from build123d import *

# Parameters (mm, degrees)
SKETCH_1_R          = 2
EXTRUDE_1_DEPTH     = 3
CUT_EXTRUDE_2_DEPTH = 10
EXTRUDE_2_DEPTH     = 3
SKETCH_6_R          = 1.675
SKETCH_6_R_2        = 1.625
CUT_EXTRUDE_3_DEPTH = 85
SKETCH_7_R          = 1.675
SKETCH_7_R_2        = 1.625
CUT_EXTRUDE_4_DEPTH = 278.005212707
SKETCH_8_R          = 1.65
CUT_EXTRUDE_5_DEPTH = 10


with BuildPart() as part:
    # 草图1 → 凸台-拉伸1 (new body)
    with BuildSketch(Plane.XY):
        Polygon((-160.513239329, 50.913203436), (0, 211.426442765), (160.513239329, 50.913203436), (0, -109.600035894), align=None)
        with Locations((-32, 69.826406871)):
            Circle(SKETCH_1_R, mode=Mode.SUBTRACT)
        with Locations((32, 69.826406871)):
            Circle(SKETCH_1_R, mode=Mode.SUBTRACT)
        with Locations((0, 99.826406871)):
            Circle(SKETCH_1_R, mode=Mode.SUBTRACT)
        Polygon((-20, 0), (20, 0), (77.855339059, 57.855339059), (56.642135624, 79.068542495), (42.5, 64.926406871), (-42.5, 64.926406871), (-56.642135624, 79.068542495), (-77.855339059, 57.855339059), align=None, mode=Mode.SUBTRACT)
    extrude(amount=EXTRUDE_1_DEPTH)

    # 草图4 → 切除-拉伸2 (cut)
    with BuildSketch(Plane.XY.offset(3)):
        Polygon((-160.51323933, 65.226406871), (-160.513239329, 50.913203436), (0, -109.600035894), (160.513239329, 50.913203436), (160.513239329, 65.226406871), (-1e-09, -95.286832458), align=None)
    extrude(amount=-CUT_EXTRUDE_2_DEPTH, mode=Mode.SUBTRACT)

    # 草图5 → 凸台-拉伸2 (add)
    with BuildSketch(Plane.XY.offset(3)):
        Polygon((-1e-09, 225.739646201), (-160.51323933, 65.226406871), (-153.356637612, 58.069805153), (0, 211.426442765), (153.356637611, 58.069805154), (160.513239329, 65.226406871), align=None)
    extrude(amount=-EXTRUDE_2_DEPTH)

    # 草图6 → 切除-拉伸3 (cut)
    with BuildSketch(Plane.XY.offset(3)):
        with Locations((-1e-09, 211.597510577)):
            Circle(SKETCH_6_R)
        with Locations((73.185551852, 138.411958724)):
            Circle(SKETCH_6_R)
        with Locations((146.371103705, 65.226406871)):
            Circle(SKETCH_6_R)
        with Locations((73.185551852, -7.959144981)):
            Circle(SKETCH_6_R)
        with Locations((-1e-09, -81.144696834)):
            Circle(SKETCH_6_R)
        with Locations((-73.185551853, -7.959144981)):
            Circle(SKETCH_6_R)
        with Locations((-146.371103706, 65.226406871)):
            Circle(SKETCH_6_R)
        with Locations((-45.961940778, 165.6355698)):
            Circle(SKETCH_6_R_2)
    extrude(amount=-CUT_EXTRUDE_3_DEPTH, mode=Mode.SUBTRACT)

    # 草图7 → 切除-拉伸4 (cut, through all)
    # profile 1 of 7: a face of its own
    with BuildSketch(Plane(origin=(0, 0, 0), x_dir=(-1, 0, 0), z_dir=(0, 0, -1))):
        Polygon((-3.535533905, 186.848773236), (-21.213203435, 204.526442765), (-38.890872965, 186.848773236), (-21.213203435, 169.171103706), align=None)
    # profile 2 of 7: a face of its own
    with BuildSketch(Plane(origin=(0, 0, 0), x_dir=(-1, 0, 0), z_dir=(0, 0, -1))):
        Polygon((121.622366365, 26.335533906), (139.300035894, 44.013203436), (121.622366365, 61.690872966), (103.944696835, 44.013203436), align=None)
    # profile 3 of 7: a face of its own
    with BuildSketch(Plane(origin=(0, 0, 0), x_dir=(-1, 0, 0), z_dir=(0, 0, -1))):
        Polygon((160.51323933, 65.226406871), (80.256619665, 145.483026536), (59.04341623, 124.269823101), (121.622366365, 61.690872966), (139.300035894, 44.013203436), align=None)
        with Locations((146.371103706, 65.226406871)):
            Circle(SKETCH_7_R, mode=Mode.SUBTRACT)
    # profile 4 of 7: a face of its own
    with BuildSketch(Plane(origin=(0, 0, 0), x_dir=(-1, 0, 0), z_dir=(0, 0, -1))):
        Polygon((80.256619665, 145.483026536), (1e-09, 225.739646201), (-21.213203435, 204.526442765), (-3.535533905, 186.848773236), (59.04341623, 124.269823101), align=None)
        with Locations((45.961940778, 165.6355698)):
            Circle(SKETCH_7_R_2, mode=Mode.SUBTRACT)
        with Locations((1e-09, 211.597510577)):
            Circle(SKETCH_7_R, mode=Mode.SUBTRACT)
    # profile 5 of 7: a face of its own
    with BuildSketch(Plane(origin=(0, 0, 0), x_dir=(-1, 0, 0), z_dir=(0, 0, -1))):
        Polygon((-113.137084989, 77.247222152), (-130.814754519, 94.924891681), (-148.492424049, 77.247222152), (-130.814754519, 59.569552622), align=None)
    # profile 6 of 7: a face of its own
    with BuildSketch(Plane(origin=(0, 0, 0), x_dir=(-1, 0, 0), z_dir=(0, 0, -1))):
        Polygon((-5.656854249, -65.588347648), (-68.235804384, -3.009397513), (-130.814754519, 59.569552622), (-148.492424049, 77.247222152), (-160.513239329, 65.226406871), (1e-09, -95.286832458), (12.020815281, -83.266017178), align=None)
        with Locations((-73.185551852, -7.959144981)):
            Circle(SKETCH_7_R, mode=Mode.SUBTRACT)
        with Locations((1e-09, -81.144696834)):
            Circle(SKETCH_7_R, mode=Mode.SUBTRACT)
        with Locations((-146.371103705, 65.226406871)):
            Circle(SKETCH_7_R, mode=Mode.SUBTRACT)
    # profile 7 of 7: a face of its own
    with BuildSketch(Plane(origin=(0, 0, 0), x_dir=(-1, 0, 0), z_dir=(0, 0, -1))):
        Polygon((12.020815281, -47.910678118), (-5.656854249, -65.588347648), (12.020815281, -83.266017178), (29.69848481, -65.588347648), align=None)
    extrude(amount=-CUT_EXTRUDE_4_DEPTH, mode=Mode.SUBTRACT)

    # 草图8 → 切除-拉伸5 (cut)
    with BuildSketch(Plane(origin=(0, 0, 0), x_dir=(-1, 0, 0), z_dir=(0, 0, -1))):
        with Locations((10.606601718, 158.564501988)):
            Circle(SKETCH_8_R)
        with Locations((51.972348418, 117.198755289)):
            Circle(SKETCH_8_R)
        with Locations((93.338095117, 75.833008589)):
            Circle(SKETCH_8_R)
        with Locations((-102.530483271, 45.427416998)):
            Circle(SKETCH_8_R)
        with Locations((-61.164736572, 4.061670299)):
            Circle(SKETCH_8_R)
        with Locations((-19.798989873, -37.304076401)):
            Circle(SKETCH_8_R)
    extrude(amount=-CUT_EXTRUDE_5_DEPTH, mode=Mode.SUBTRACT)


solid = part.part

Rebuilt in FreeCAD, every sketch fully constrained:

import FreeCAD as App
import Part
import Sketcher

doc = App.newDocument("Part")
body = doc.addObject("PartDesign::Body", "Body")

sketch1 = doc.addObject("Sketcher::SketchObject", "Sketch")
body.addObject(sketch1)
sketch1.AttachmentSupport = (doc.XY_Plane, [""])
sketch1.MapMode = "FlatFace"
sketch1.addGeometry([
    Part.LineSegment(App.Vector(0, 211.426443, 0), App.Vector(-160.513239, 50.913203, 0)),
    Part.LineSegment(App.Vector(-160.513239, 50.913203, 0), App.Vector(0, -109.600036, 0)),
    Part.LineSegment(App.Vector(0, -109.600036, 0), App.Vector(160.513239, 50.913203, 0)),
    Part.LineSegment(App.Vector(160.513239, 50.913203, 0), App.Vector(0, 211.426443, 0)),
    Part.LineSegment(App.Vector(-20, 0, 0), App.Vector(-77.855339, 57.855339, 0)),
    Part.LineSegment(App.Vector(-77.855339, 57.855339, 0), App.Vector(-56.642136, 79.068542, 0)),
    Part.LineSegment(App.Vector(-56.642136, 79.068542, 0), App.Vector(-42.5, 64.926407, 0)),
    Part.LineSegment(App.Vector(-42.5, 64.926407, 0), App.Vector(42.5, 64.926407, 0)),
    Part.LineSegment(App.Vector(42.5, 64.926407, 0), App.Vector(56.642136, 79.068542, 0)),
    Part.LineSegment(App.Vector(56.642136, 79.068542, 0), App.Vector(77.855339, 57.855339, 0)),
    Part.LineSegment(App.Vector(77.855339, 57.855339, 0), App.Vector(20, 0, 0)),
    Part.LineSegment(App.Vector(20, 0, 0), App.Vector(-20, 0, 0)),
    Part.Circle(App.Vector(32, 69.826407, 0), App.Vector(0, 0, 1), 2),
    Part.Circle(App.Vector(-32, 69.826407, 0), App.Vector(0, 0, 1), 2),
    Part.Circle(App.Vector(0, 99.826407, 0), App.Vector(0, 0, 1), 2),
], False)
sketch1.addConstraint([
    Sketcher.Constraint("Coincident", 0, 2, 1, 1),
    Sketcher.Constraint("Coincident", 1, 2, 2, 1),
    Sketcher.Constraint("Coincident", 2, 2, 3, 1),
    Sketcher.Constraint("Coincident", 3, 2, 0, 1),
    Sketcher.Constraint("Coincident", 4, 2, 5, 1),
    Sketcher.Constraint("Coincident", 5, 2, 6, 1),
    Sketcher.Constraint("Coincident", 6, 2, 7, 1),
    Sketcher.Constraint("Coincident", 7, 2, 8, 1),
    Sketcher.Constraint("Coincident", 8, 2, 9, 1),
    Sketcher.Constraint("Coincident", 9, 2, 10, 1),
    Sketcher.Constraint("Coincident", 10, 2, 11, 1),
    Sketcher.Constraint("Coincident", 11, 2, 4, 1),
    Sketcher.Constraint("Horizontal", 7),
    Sketcher.Constraint("Horizontal", 11),
    Sketcher.Constraint("Equal", 12, 13),
    Sketcher.Constraint("Equal", 13, 14),
    Sketcher.Constraint("Symmetric", 10, 2, 11, 2, -1, 1),
    Sketcher.Constraint("Symmetric", 12, 3, 13, 3, -2),
    Sketcher.Constraint("Symmetric", 0, 2, 2, 2, -2),
    Sketcher.Constraint("Symmetric", 5, 2, 8, 2, -2),
    Sketcher.Constraint("Symmetric", 4, 2, 9, 2, -2),
    Sketcher.Constraint("PointOnObject", 14, 3, -2),
    Sketcher.Constraint("PointOnObject", 1, 2, -2),
    Sketcher.Constraint("PointOnObject", 3, 2, -2),
    Sketcher.Constraint("Perpendicular", 0, 1),
    Sketcher.Constraint("Perpendicular", 1, 2),
    Sketcher.Constraint("Parallel", 3, 4),
    Sketcher.Constraint("Perpendicular", 4, 5),
    Sketcher.Constraint("Perpendicular", 5, 6),
    Sketcher.Constraint("Perpendicular", 6, 8),
    Sketcher.Constraint("Diameter", 12, 4.0),
    Sketcher.Constraint("DistanceX", 7, 1, 7, 2, 85.0),
    Sketcher.Constraint("DistanceX", 11, 2, 11, 1, 40.0),
    Sketcher.Constraint("Distance", 0, 227.0),
    Sketcher.Constraint("Distance", 5, 30.0),
    Sketcher.Constraint("Distance", 6, 20.0),
    Sketcher.Constraint("DistanceX", -1, 1, 12, 3, 32.0),
    Sketcher.Constraint("DistanceY", 12, 3, 14, 3, 30.0),
    Sketcher.Constraint("DistanceY", 6, 2, 13, 3, 4.9),
    Sketcher.Constraint("DistanceY", 0, 2, 5, 2, 28.155339),
])
pad1 = doc.addObject("PartDesign::Pad", "Pad")
body.addObject(pad1)
pad1.Profile = sketch1
pad1.Length = 3

sketch2 = doc.addObject("Sketcher::SketchObject", "Sketch001")
body.addObject(sketch2)
sketch2.AttachmentSupport = (doc.XY_Plane, [""])
sketch2.MapMode = "FlatFace"
sketch2.AttachmentOffset = App.Placement(App.Vector(0, 0, 3), App.Rotation())
sketch2.addGeometry([
    Part.LineSegment(App.Vector(-160.513239, 65.226407, 0), App.Vector(-160.513239, 50.913203, 0)),
    Part.LineSegment(App.Vector(-160.513239, 50.913203, 0), App.Vector(0, -109.600036, 0)),
    Part.LineSegment(App.Vector(0, -109.600036, 0), App.Vector(160.513239, 50.913203, 0)),
    Part.LineSegment(App.Vector(160.513239, 50.913203, 0), App.Vector(160.513239, 65.226407, 0)),
    Part.LineSegment(App.Vector(160.513239, 65.226407, 0), App.Vector(0, -95.286832, 0)),
    Part.LineSegment(App.Vector(0, -95.286832, 0), App.Vector(-160.513239, 65.226407, 0)),
], False)
sketch2.addConstraint([
    Sketcher.Constraint("Coincident", 0, 2, 1, 1),
    Sketcher.Constraint("Coincident", 1, 2, 2, 1),
    Sketcher.Constraint("Coincident", 2, 2, 3, 1),
    Sketcher.Constraint("Coincident", 3, 2, 4, 1),
    Sketcher.Constraint("Coincident", 4, 2, 5, 1),
    Sketcher.Constraint("Coincident", 5, 2, 0, 1),
    Sketcher.Constraint("Vertical", 0),
    Sketcher.Constraint("Vertical", 3),
    Sketcher.Constraint("Symmetric", 0, 2, 2, 2, -2),
    Sketcher.Constraint("PointOnObject", 1, 2, -2),
    Sketcher.Constraint("PointOnObject", 4, 2, -2),
    Sketcher.Constraint("Perpendicular", 1, 2),
    Sketcher.Constraint("Parallel", 2, 4),
    Sketcher.Constraint("Perpendicular", 4, 5),
    Sketcher.Constraint("Distance", 1, 227.0),
    Sketcher.Constraint("DistanceY", 0, 2, 0, 1, 14.313203),
    Sketcher.Constraint("DistanceY", -1, 1, 0, 2, 50.913203),
])
pocket1 = doc.addObject("PartDesign::Pocket", "Pocket")
body.addObject(pocket1)
pocket1.Profile = sketch2
pocket1.Length = 10

sketch3 = doc.addObject("Sketcher::SketchObject", "Sketch002")
body.addObject(sketch3)
sketch3.AttachmentSupport = (doc.XY_Plane, [""])
sketch3.MapMode = "FlatFace"
sketch3.AttachmentOffset = App.Placement(App.Vector(0, 0, 3), App.Rotation())
sketch3.addGeometry([
    Part.LineSegment(App.Vector(0, 225.739646, 0), App.Vector(-160.513239, 65.226407, 0)),
    Part.LineSegment(App.Vector(-160.513239, 65.226407, 0), App.Vector(-153.356638, 58.069805, 0)),
    Part.LineSegment(App.Vector(-153.356638, 58.069805, 0), App.Vector(0, 211.426443, 0)),
    Part.LineSegment(App.Vector(0, 211.426443, 0), App.Vector(153.356638, 58.069805, 0)),
    Part.LineSegment(App.Vector(153.356638, 58.069805, 0), App.Vector(160.513239, 65.226407, 0)),
    Part.LineSegment(App.Vector(160.513239, 65.226407, 0), App.Vector(0, 225.739646, 0)),
], False)
sketch3.addConstraint([
    Sketcher.Constraint("Coincident", 0, 2, 1, 1),
    Sketcher.Constraint("Coincident", 1, 2, 2, 1),
    Sketcher.Constraint("Coincident", 2, 2, 3, 1),
    Sketcher.Constraint("Coincident", 3, 2, 4, 1),
    Sketcher.Constraint("Coincident", 4, 2, 5, 1),
    Sketcher.Constraint("Coincident", 5, 2, 0, 1),
    Sketcher.Constraint("Symmetric", 1, 2, 3, 2, -2),
    Sketcher.Constraint("Symmetric", 0, 2, 4, 2, -2),
    Sketcher.Constraint("PointOnObject", 2, 2, -2),
    Sketcher.Constraint("PointOnObject", 5, 2, -2),
    Sketcher.Constraint("Perpendicular", 0, 1),
    Sketcher.Constraint("Perpendicular", 1, 2),
    Sketcher.Constraint("Perpendicular", 2, 3),
    Sketcher.Constraint("Distance", 0, 227.0),
    Sketcher.Constraint("DistanceX", 0, 2, 1, 2, 7.156602),
    Sketcher.Constraint("DistanceY", -1, 1, 0, 2, 65.226407),
])
pad2 = doc.addObject("PartDesign::Pad", "Pad001")
body.addObject(pad2)
pad2.Profile = sketch3
pad2.Length = 3
pad2.Reversed = True

sketch4 = doc.addObject("Sketcher::SketchObject", "Sketch003")
body.addObject(sketch4)
sketch4.AttachmentSupport = (doc.XY_Plane, [""])
sketch4.MapMode = "FlatFace"
sketch4.AttachmentOffset = App.Placement(App.Vector(0, 0, 3), App.Rotation())
sketch4.addGeometry([
    Part.Circle(App.Vector(0, 211.597511, 0), App.Vector(0, 0, 1), 1.675),
    Part.Circle(App.Vector(73.185552, 138.411959, 0), App.Vector(0, 0, 1), 1.675),
    Part.Circle(App.Vector(146.371104, 65.226407, 0), App.Vector(0, 0, 1), 1.675),
    Part.Circle(App.Vector(73.185552, -7.959145, 0), App.Vector(0, 0, 1), 1.675),
    Part.Circle(App.Vector(0, -81.144697, 0), App.Vector(0, 0, 1), 1.675),
    Part.Circle(App.Vector(-73.185552, -7.959145, 0), App.Vector(0, 0, 1), 1.675),
    Part.Circle(App.Vector(-146.371104, 65.226407, 0), App.Vector(0, 0, 1), 1.675),
    Part.Circle(App.Vector(-45.961941, 165.63557, 0), App.Vector(0, 0, 1), 1.625),
], False)
sketch4.addConstraint([
    Sketcher.Constraint("Equal", 0, 1),
    Sketcher.Constraint("Equal", 1, 2),
    Sketcher.Constraint("Equal", 2, 3),
    Sketcher.Constraint("Equal", 3, 4),
    Sketcher.Constraint("Equal", 4, 5),
    Sketcher.Constraint("Equal", 5, 6),
    Sketcher.Constraint("Symmetric", 3, 3, 5, 3, -2),
    Sketcher.Constraint("Symmetric", 2, 3, 6, 3, -2),
    Sketcher.Constraint("PointOnObject", 0, 3, -2),
    Sketcher.Constraint("PointOnObject", 4, 3, -2),
    Sketcher.Constraint("Vertical", 1, 3, 3, 3),
    Sketcher.Constraint("Diameter", 0, 3.35),
    Sketcher.Constraint("Diameter", 7, 3.25),
    Sketcher.Constraint("DistanceY", -1, 1, 0, 3, 211.597511),
    Sketcher.Constraint("DistanceX", -1, 1, 1, 3, 73.185552),
    Sketcher.Constraint("DistanceY", -1, 1, 1, 3, 138.411959),
    Sketcher.Constraint("DistanceX", 7, 3, -1, 1, 45.961941),
    Sketcher.Constraint("DistanceY", -1, 1, 7, 3, 165.63557),
    Sketcher.Constraint("DistanceX", 1, 3, 2, 3, 73.185552),
    Sketcher.Constraint("DistanceY", 2, 3, 1, 3, 73.185552),
    Sketcher.Constraint("DistanceY", 3, 3, 2, 3, 73.185552),
    Sketcher.Constraint("DistanceY", 4, 3, 3, 3, 73.185552),
])
pocket2 = doc.addObject("PartDesign::Pocket", "Pocket001")
body.addObject(pocket2)
pocket2.Profile = sketch4
pocket2.Length = 85

sketch5 = doc.addObject("Sketcher::SketchObject", "Sketch004")
body.addObject(sketch5)
sketch5.AttachmentSupport = (doc.XY_Plane, [""])
sketch5.MapMode = "FlatFace"
sketch5.addGeometry([
    Part.LineSegment(App.Vector(21.213203, 204.526443, 0), App.Vector(38.890873, 186.848773, 0)),
    Part.LineSegment(App.Vector(38.890873, 186.848773, 0), App.Vector(21.213203, 169.171104, 0)),
    Part.LineSegment(App.Vector(21.213203, 169.171104, 0), App.Vector(3.535534, 186.848773, 0)),
    Part.LineSegment(App.Vector(3.535534, 186.848773, 0), App.Vector(-121.622366, 61.690873, 0)),
    Part.LineSegment(App.Vector(-121.622366, 61.690873, 0), App.Vector(-103.944697, 44.013203, 0)),
    Part.LineSegment(App.Vector(-103.944697, 44.013203, 0), App.Vector(-121.622366, 26.335534, 0)),
    Part.LineSegment(App.Vector(-121.622366, 26.335534, 0), App.Vector(-139.300036, 44.013203, 0)),
    Part.LineSegment(App.Vector(-139.300036, 44.013203, 0), App.Vector(-160.513239, 65.226407, 0)),
    Part.LineSegment(App.Vector(-160.513239, 65.226407, 0), App.Vector(-80.25662, 145.483027, 0)),
    Part.LineSegment(App.Vector(-80.25662, 145.483027, 0), App.Vector(0, 225.739646, 0)),
    Part.LineSegment(App.Vector(0, 225.739646, 0), App.Vector(21.213203, 204.526443, 0)),
    Part.Circle(App.Vector(0, 211.597511, 0), App.Vector(0, 0, 1), 1.675),
    Part.Circle(App.Vector(-45.961941, 165.63557, 0), App.Vector(0, 0, 1), 1.625),
    Part.Circle(App.Vector(-146.371104, 65.226407, 0), App.Vector(0, 0, 1), 1.675),
    Part.LineSegment(App.Vector(113.137085, 77.247222, 0), App.Vector(130.814755, 94.924892, 0)),
    Part.LineSegment(App.Vector(130.814755, 94.924892, 0), App.Vector(148.492424, 77.247222, 0)),
    Part.LineSegment(App.Vector(148.492424, 77.247222, 0), App.Vector(160.513239, 65.226407, 0)),
    Part.LineSegment(App.Vector(160.513239, 65.226407, 0), App.Vector(0, -95.286832, 0)),
    Part.LineSegment(App.Vector(0, -95.286832, 0), App.Vector(-12.020815, -83.266017, 0)),
    Part.LineSegment(App.Vector(-12.020815, -83.266017, 0), App.Vector(-29.698485, -65.588348, 0)),
    Part.LineSegment(App.Vector(-29.698485, -65.588348, 0), App.Vector(-12.020815, -47.910678, 0)),
    Part.LineSegment(App.Vector(-12.020815, -47.910678, 0), App.Vector(5.656854, -65.588348, 0)),
    Part.LineSegment(App.Vector(5.656854, -65.588348, 0), App.Vector(130.814755, 59.569553, 0)),
    Part.LineSegment(App.Vector(130.814755, 59.569553, 0), App.Vector(113.137085, 77.247222, 0)),
    Part.Circle(App.Vector(73.185552, -7.959145, 0), App.Vector(0, 0, 1), 1.675),
    Part.Circle(App.Vector(0, -81.144697, 0), App.Vector(0, 0, 1), 1.675),
    Part.Circle(App.Vector(146.371104, 65.226407, 0), App.Vector(0, 0, 1), 1.675),
], False)
sketch5.addConstraint([
    Sketcher.Constraint("Coincident", 0, 2, 1, 1),
    Sketcher.Constraint("Coincident", 1, 2, 2, 1),
    Sketcher.Constraint("Coincident", 2, 2, 3, 1),
    Sketcher.Constraint("Coincident", 3, 2, 4, 1),
    Sketcher.Constraint("Coincident", 4, 2, 5, 1),
    Sketcher.Constraint("Coincident", 5, 2, 6, 1),
    Sketcher.Constraint("Coincident", 6, 2, 7, 1),
    Sketcher.Constraint("Coincident", 7, 2, 8, 1),
    Sketcher.Constraint("Coincident", 8, 2, 9, 1),
    Sketcher.Constraint("Coincident", 9, 2, 10, 1),
    Sketcher.Constraint("Coincident", 10, 2, 0, 1),
    Sketcher.Constraint("Coincident", 14, 2, 15, 1),
    Sketcher.Constraint("Coincident", 15, 2, 16, 1),
    Sketcher.Constraint("Coincident", 16, 2, 17, 1),
    Sketcher.Constraint("Coincident", 17, 2, 18, 1),
    Sketcher.Constraint("Coincident", 18, 2, 19, 1),
    Sketcher.Constraint("Coincident", 19, 2, 20, 1),
    Sketcher.Constraint("Coincident", 20, 2, 21, 1),
    Sketcher.Constraint("Coincident", 21, 2, 22, 1),
    Sketcher.Constraint("Coincident", 22, 2, 23, 1),
    Sketcher.Constraint("Coincident", 23, 2, 14, 1),
    Sketcher.Constraint("Equal", 11, 13),
    Sketcher.Constraint("Equal", 13, 24),
    Sketcher.Constraint("Equal", 24, 25),
    Sketcher.Constraint("Equal", 25, 26),
    Sketcher.Constraint("Symmetric", 13, 3, 26, 3, -2),
    Sketcher.Constraint("Symmetric", 7, 2, 16, 2, -2),
    Sketcher.Constraint("PointOnObject", 11, 3, -2),
    Sketcher.Constraint("PointOnObject", 25, 3, -2),
    Sketcher.Constraint("PointOnObject", 9, 2, -2),
    Sketcher.Constraint("PointOnObject", 17, 2, -2),
    Sketcher.Constraint("Perpendicular", 0, 1),
    Sketcher.Constraint("Perpendicular", 1, 2),
    Sketcher.Constraint("Perpendicular", 2, 3),
    Sketcher.Constraint("Perpendicular", 3, 4),
    Sketcher.Constraint("Perpendicular", 4, 5),
    Sketcher.Constraint("Perpendicular", 5, 6),
    Sketcher.Constraint("Parallel", 6, 7),
    Sketcher.Constraint("Perpendicular", 7, 8),
    Sketcher.Constraint("Parallel", 8, 9),
    Sketcher.Constraint("Perpendicular", 9, 10),
    Sketcher.Constraint("Perpendicular", 10, 14),
    Sketcher.Constraint("Perpendicular", 14, 15),
    Sketcher.Constraint("Parallel", 15, 16),
    Sketcher.Constraint("Perpendicular", 16, 17),
    Sketcher.Constraint("Perpendicular", 17, 18),
    Sketcher.Constraint("Parallel", 18, 19),
    Sketcher.Constraint("Perpendicular", 19, 20),
    Sketcher.Constraint("Perpendicular", 20, 21),
    Sketcher.Constraint("Perpendicular", 21, 22),
    Sketcher.Constraint("Perpendicular", 22, 23),
    Sketcher.Constraint("Horizontal", 0, 2, 2, 2),
    Sketcher.Constraint("Horizontal", 4, 2, 6, 2),
    Sketcher.Constraint("Horizontal", 26, 3, 7, 2),
    Sketcher.Constraint("Horizontal", 19, 2, 21, 2),
    Sketcher.Constraint("Horizontal", 15, 2, 23, 2),
    Sketcher.Constraint("Vertical", 3, 2, 5, 2),
    Sketcher.Constraint("Vertical", 1, 2, 10, 2),
    Sketcher.Constraint("Vertical", 18, 2, 20, 2),
    Sketcher.Constraint("Vertical", 14, 2, 22, 2),
    Sketcher.Constraint("Equal", 0, 1),
    Sketcher.Constraint("Equal", 2, 4),
    Sketcher.Constraint("Equal", 8, 9),
    Sketcher.Constraint("Equal", 6, 14),
    Sketcher.Constraint("Equal", 15, 19),
    Sketcher.Constraint("Diameter", 11, 3.35),
    Sketcher.Constraint("Diameter", 12, 3.25),
    Sketcher.Constraint("Distance", 0, 25.0),
    Sketcher.Constraint("Distance", 3, 177.0),
    Sketcher.Constraint("Distance", 7, 30.0),
    Sketcher.Constraint("Distance", 16, 17.0),
    Sketcher.Constraint("DistanceX", 1, 2, 26, 3, 125.1579),
    Sketcher.Constraint("DistanceY", 25, 3, 4, 2, 125.1579),
    Sketcher.Constraint("DistanceY", -1, 1, 11, 3, 211.597511),
    Sketcher.Constraint("DistanceX", 12, 3, -1, 1, 45.961941),
    Sketcher.Constraint("DistanceY", -1, 1, 12, 3, 165.63557),
    Sketcher.Constraint("DistanceX", -1, 1, 24, 3, 73.185552),
    Sketcher.Constraint("DistanceY", -1, 1, 14, 2, 94.924892),
    Sketcher.Constraint("DistanceY", 24, 3, 13, 3, 73.185552),
])
pocket3 = doc.addObject("PartDesign::Pocket", "Pocket002")
body.addObject(pocket3)
pocket3.Profile = sketch5
pocket3.Length = 278.005213
pocket3.Reversed = True

sketch6 = doc.addObject("Sketcher::SketchObject", "Sketch005")
body.addObject(sketch6)
sketch6.AttachmentSupport = (doc.XY_Plane, [""])
sketch6.MapMode = "FlatFace"
sketch6.addGeometry([
    Part.Circle(App.Vector(-10.606602, 158.564502, 0), App.Vector(0, 0, 1), 1.65),
    Part.Circle(App.Vector(-51.972348, 117.198755, 0), App.Vector(0, 0, 1), 1.65),
    Part.Circle(App.Vector(-93.338095, 75.833009, 0), App.Vector(0, 0, 1), 1.65),
    Part.Circle(App.Vector(102.530483, 45.427417, 0), App.Vector(0, 0, 1), 1.65),
    Part.Circle(App.Vector(61.164737, 4.06167, 0), App.Vector(0, 0, 1), 1.65),
    Part.Circle(App.Vector(19.79899, -37.304076, 0), App.Vector(0, 0, 1), 1.65),
], False)
sketch6.addConstraint([
    Sketcher.Constraint("Equal", 0, 1),
    Sketcher.Constraint("Equal", 1, 2),
    Sketcher.Constraint("Equal", 2, 3),
    Sketcher.Constraint("Equal", 3, 4),
    Sketcher.Constraint("Equal", 4, 5),
    Sketcher.Constraint("Diameter", 0, 3.3),
    Sketcher.Constraint("DistanceX", 0, 3, -1, 1, 10.606602),
    Sketcher.Constraint("DistanceY", -1, 1, 0, 3, 158.564502),
    Sketcher.Constraint("DistanceX", 1, 3, -1, 1, 51.972348),
    Sketcher.Constraint("DistanceY", -1, 1, 2, 3, 75.833009),
    Sketcher.Constraint("DistanceY", -1, 1, 4, 3, 4.06167),
    Sketcher.Constraint("DistanceX", -1, 1, 5, 3, 19.79899),
    Sketcher.Constraint("DistanceX", 1, 3, 3, 3, 154.502832),
    Sketcher.Constraint("DistanceY", 3, 3, 1, 3, 71.771338),
    Sketcher.Constraint("DistanceX", 2, 3, 3, 3, 195.868578),
    Sketcher.Constraint("DistanceY", 3, 3, 2, 3, 30.405592),
    Sketcher.Constraint("DistanceX", 0, 3, 4, 3, 71.771338),
    Sketcher.Constraint("DistanceY", 5, 3, 1, 3, 154.502832),
])
pocket4 = doc.addObject("PartDesign::Pocket", "Pocket003")
body.addObject(pocket4)
pocket4.Profile = sketch6
pocket4.Length = 10
pocket4.Reversed = True

doc.recompute()
